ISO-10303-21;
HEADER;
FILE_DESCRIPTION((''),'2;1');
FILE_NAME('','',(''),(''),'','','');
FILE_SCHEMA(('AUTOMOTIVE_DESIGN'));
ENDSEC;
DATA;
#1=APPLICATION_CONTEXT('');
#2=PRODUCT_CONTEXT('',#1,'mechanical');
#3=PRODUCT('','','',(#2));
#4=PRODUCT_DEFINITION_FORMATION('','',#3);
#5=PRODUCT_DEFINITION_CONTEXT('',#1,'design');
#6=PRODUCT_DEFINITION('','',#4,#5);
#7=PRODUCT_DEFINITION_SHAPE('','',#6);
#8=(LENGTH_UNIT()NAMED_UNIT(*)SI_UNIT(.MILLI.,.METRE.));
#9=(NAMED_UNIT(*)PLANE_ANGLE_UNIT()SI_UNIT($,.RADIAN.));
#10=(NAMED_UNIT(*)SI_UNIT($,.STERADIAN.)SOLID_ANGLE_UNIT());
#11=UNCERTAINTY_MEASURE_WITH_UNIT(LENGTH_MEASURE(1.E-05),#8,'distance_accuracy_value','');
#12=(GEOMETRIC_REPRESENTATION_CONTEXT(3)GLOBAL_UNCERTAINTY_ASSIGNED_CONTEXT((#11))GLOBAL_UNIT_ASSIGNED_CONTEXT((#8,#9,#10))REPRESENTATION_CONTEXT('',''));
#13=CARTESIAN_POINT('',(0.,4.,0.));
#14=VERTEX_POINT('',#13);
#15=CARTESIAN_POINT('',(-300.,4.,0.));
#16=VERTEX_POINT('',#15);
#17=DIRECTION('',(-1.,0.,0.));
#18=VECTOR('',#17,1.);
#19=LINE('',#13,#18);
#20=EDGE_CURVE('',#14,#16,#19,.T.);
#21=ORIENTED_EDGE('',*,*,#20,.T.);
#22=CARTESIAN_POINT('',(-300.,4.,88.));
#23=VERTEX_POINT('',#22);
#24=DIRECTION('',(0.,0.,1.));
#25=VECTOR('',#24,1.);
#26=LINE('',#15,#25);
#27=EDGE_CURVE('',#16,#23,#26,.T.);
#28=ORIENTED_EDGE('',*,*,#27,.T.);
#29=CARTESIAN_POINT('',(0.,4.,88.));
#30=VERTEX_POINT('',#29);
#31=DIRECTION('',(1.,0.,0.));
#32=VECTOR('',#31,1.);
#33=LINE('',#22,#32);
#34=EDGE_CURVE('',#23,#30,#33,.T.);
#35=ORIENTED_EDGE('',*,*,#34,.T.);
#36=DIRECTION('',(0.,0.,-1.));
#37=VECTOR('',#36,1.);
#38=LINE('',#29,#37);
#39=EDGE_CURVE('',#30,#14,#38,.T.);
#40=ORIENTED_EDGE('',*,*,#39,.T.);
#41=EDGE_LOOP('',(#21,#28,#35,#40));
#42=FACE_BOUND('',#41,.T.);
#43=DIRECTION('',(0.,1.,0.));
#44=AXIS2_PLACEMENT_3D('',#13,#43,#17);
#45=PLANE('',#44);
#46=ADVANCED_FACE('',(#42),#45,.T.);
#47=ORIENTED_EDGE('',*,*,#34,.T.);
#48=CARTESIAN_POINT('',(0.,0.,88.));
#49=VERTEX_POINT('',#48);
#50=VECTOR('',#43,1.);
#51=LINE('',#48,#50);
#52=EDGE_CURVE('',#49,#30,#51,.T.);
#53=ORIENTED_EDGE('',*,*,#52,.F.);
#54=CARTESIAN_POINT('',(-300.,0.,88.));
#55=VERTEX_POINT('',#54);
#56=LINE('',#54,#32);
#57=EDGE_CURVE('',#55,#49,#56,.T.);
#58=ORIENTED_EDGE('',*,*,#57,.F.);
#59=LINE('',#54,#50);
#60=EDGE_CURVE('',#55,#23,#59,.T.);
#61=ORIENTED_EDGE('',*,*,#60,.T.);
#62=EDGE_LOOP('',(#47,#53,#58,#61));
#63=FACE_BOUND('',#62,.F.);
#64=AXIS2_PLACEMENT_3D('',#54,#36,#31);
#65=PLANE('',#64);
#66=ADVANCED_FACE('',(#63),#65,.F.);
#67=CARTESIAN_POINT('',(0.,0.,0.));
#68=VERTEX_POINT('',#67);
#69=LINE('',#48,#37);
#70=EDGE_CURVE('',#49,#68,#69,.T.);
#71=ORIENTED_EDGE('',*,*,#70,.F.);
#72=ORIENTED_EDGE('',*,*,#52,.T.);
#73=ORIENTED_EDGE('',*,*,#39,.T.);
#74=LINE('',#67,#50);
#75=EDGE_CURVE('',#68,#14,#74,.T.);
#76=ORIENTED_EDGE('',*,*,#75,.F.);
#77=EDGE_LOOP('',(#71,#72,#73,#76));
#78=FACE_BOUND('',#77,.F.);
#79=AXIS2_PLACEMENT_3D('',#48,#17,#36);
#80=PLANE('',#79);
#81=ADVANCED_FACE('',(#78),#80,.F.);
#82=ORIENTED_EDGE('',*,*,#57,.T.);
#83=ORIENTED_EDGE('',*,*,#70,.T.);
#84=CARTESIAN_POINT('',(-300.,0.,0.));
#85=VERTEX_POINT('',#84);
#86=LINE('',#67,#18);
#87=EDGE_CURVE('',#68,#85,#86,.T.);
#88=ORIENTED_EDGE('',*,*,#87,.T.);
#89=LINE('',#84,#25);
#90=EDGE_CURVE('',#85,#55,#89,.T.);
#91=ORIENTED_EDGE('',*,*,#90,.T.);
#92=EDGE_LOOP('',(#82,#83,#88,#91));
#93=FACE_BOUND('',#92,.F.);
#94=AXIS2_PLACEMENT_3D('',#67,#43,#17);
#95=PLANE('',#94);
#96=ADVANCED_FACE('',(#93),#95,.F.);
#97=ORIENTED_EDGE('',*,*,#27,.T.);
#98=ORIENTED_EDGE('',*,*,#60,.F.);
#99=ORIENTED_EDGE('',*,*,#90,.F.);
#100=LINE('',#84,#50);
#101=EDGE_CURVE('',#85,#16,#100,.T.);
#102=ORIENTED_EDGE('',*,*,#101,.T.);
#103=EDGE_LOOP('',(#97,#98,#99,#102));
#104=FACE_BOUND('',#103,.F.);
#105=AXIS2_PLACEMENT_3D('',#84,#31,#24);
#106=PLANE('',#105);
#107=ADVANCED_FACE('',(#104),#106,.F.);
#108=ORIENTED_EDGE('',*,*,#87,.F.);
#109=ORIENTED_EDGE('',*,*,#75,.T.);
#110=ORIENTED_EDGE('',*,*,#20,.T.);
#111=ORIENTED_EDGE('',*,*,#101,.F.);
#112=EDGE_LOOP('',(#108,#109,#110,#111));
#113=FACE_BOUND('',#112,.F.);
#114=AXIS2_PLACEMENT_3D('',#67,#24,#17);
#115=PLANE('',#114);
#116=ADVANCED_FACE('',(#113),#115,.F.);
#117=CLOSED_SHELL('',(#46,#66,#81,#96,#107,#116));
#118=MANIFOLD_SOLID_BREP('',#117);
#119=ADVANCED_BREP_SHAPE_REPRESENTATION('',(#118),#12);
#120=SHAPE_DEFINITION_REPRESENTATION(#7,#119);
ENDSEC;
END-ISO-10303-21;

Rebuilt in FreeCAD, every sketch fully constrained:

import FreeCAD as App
import Part
import Sketcher
Q = App.Units.Quantity

doc = App.newDocument("Part")
body = doc.addObject("PartDesign::Body", "Body")

sketch1 = body.newObject("Sketcher::SketchObject", "Sketch")
sketch1.AttachmentSupport = (doc.getObject("XZ_Plane"), [""])
sketch1.MapMode = "FlatFace"
sketch1.addGeometry(Part.LineSegment(App.Vector(0, 88, 0), App.Vector(0, 0, 0)), False)
sketch1.addGeometry(Part.LineSegment(App.Vector(0, 0, 0), App.Vector(-300, 0, 0)), False)
sketch1.addGeometry(Part.LineSegment(App.Vector(-300, 0, 0), App.Vector(-300, 88, 0)), False)
sketch1.addGeometry(Part.LineSegment(App.Vector(-300, 88, 0), App.Vector(0, 88, 0)), False)
sketch1.addConstraint(Sketcher.Constraint("Coincident", 0, 2, 1, 1))
sketch1.addConstraint(Sketcher.Constraint("Coincident", 1, 2, 2, 1))
sketch1.addConstraint(Sketcher.Constraint("Coincident", 2, 2, 3, 1))
sketch1.addConstraint(Sketcher.Constraint("Coincident", 3, 2, 0, 1))
sketch1.addConstraint(Sketcher.Constraint("Vertical", 0))
sketch1.addConstraint(Sketcher.Constraint("Horizontal", 1))
sketch1.addConstraint(Sketcher.Constraint("Vertical", 2))
sketch1.addConstraint(Sketcher.Constraint("Horizontal", 3))
sketch1.addConstraint(Sketcher.Constraint("Coincident", 0, 2, -1, 1))
sketch1.addConstraint(Sketcher.Constraint("DistanceX", 1, 2, 1, 1, Q("300 mm")))
sketch1.addConstraint(Sketcher.Constraint("DistanceY", 0, 2, 0, 1, Q("88 mm")))
pad1 = body.newObject("PartDesign::Pad", "Pad")
pad1.Profile = sketch1
pad1.Length = 4
pad1.Reversed = True

doc.recompute()
